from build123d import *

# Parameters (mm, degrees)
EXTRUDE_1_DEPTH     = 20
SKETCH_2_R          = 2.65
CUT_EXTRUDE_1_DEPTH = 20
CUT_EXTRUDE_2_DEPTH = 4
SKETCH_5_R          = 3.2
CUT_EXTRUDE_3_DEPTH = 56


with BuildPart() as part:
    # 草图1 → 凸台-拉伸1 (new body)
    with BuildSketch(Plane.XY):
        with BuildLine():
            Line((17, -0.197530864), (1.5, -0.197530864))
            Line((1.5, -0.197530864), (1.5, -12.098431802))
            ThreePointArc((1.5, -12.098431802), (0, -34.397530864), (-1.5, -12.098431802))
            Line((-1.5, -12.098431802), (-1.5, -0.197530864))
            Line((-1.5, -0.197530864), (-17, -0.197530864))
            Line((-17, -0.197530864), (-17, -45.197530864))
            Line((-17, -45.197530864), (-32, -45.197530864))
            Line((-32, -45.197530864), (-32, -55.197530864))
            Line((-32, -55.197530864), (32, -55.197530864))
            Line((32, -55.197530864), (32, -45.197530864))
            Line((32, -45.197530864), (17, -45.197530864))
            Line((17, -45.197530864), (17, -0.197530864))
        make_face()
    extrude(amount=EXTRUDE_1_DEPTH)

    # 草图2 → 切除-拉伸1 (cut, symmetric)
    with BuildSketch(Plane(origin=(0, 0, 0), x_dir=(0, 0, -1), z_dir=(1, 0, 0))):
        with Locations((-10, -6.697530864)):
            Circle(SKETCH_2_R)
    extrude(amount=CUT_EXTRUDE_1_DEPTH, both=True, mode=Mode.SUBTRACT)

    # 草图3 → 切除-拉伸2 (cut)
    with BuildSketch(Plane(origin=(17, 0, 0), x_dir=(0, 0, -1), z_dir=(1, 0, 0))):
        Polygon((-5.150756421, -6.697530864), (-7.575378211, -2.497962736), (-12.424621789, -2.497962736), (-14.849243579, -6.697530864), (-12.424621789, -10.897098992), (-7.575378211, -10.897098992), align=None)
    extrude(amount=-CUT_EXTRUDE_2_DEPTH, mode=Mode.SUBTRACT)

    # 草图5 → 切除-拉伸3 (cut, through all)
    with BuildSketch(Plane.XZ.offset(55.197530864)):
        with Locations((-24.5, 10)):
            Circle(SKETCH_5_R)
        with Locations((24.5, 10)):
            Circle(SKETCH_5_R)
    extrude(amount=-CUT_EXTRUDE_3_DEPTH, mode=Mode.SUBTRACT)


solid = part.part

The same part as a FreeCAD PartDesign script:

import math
import FreeCAD as App
import Part
import Sketcher
from FreeCAD import Vector
Q = App.Units.Quantity


def add_polygon(sketch, points):
    """Adds a closed chain of lines whose ends are joined by coincident constraints."""
    first, n = sketch.GeometryCount, len(points)
    for a, b in zip(points, points[1:] + points[:1]):
        sketch.addGeometry(Part.LineSegment(App.Vector(*a, 0), App.Vector(*b, 0)), False)
    for i in range(n):
        sketch.addConstraint(Sketcher.Constraint("Coincident", first + i, 2, first + (i + 1) % n, 1))

doc = App.newDocument("Part")
body = doc.addObject("PartDesign::Body", "Body")

# Sketch on XY plane
sketch1 = body.newObject("Sketcher::SketchObject", "Sketch")
sketch1.AttachmentSupport = (doc.getObject("XY_Plane"), [""])
sketch1.MapMode = "FlatFace"
sketch1.addGeometry([
    Part.LineSegment(Vector(17, -0.2, 0), Vector(1.5, -0.2, 0)),  # 0
    Part.LineSegment(Vector(1.5, -0.2, 0), Vector(1.5, -12.1, 0)),  # 1
    Part.ArcOfCircle(Part.Circle(Vector(0, -23.2, 0), Vector(0, 0, 1), 11.2), math.radians(98), math.radians(442)),  # 2
    Part.LineSegment(Vector(-1.5, -12.1, 0), Vector(-1.5, -0.2, 0)),  # 3
    Part.LineSegment(Vector(-1.5, -0.2, 0), Vector(-17, -0.2, 0)),  # 4
    Part.LineSegment(Vector(-17, -0.2, 0), Vector(-17, -45.2, 0)),  # 5
    Part.LineSegment(Vector(-17, -45.2, 0), Vector(-32, -45.2, 0)),  # 6
    Part.LineSegment(Vector(-32, -45.2, 0), Vector(-32, -55.2, 0)),  # 7
    Part.LineSegment(Vector(-32, -55.2, 0), Vector(32, -55.2, 0)),  # 8
    Part.LineSegment(Vector(32, -55.2, 0), Vector(32, -45.2, 0)),  # 9
    Part.LineSegment(Vector(32, -45.2, 0), Vector(17, -45.2, 0)),  # 10
    Part.LineSegment(Vector(17, -45.2, 0), Vector(17, -0.2, 0)),  # 11
], False)
sketch1.addConstraint([
    Sketcher.Constraint("Coincident", 0, 2, 1, 1),
    Sketcher.Constraint("Coincident", 1, 2, 2, 2),
    Sketcher.Constraint("Coincident", 2, 1, 3, 1),
    Sketcher.Constraint("Coincident", 3, 2, 4, 1),
    Sketcher.Constraint("Coincident", 4, 2, 5, 1),
    Sketcher.Constraint("Coincident", 5, 2, 6, 1),
    Sketcher.Constraint("Coincident", 6, 2, 7, 1),
    Sketcher.Constraint("Coincident", 7, 2, 8, 1),
    Sketcher.Constraint("Coincident", 8, 2, 9, 1),
    Sketcher.Constraint("Coincident", 9, 2, 10, 1),
    Sketcher.Constraint("Coincident", 10, 2, 11, 1),
    Sketcher.Constraint("Coincident", 11, 2, 0, 1),
    Sketcher.Constraint("Horizontal", 0),
    Sketcher.Constraint("Vertical", 1),
    Sketcher.Constraint("Vertical", 3),
    Sketcher.Constraint("Horizontal", 4),
    Sketcher.Constraint("Vertical", 5),
    Sketcher.Constraint("Horizontal", 6),
    Sketcher.Constraint("Vertical", 7),
    Sketcher.Constraint("Horizontal", 8),
    Sketcher.Constraint("Vertical", 9),
    Sketcher.Constraint("Horizontal", 10),
    Sketcher.Constraint("Vertical", 11),
    Sketcher.Constraint("Symmetric", 1, 2, 2, 1, -2),
    Sketcher.Constraint("Symmetric", 6, 2, 9, 2, -2),
    Sketcher.Constraint("Symmetric", 4, 2, 11, 2, -2),
    Sketcher.Constraint("Radius", 2, 11.2),
    Sketcher.Constraint("DistanceX", 6, 2, 6, 1, 15.0),
    Sketcher.Constraint("DistanceX", 8, 1, 8, 2, 64.0),
    Sketcher.Constraint("DistanceY", 5, 2, 5, 1, 45.0),
    Sketcher.Constraint("DistanceY", 7, 2, 7, 1, 10.0),
    Sketcher.Constraint("DistanceX", 0, 2, 0, 1, 15.5),
    Sketcher.Constraint("DistanceY", 2, 3, 0, 2, 23.0),
    Sketcher.Constraint("DistanceY", 2, 3, -1, 1, 23.197531),
])
pad1 = body.newObject("PartDesign::Pad", "Pad")
pad1.Profile = sketch1
pad1.Length = 20

# Sketch on YZ plane
sketch2 = body.newObject("Sketcher::SketchObject", "Sketch001")
sketch2.AttachmentSupport = (doc.getObject("YZ_Plane"), [""])
sketch2.MapMode = "FlatFace"
sketch2.addGeometry(Part.Circle(Vector(-6.7, 10, 0), Vector(0, 0, 1), 2.6), False)
sketch2.addConstraint([
    Sketcher.Constraint("Diameter", 0, 5.3),
    Sketcher.Constraint("DistanceY", -1, 1, 0, 3, 10.0),
    Sketcher.Constraint("DistanceX", 0, 3, -1, 1, 6.697531),
])
pocket1 = body.newObject("PartDesign::Pocket", "Pocket")
pocket1.Profile = sketch2
pocket1.Length = 40
pocket1.Midplane = True

# Sketch on YZ plane
sketch3 = body.newObject("Sketcher::SketchObject", "Sketch002")
sketch3.AttachmentSupport = (doc.getObject("YZ_Plane"), [""])
sketch3.MapMode = "FlatFace"
sketch3.AttachmentOffset = App.Placement(Vector(0, 0, 17), App.Rotation())
add_polygon(sketch3, [(-6.7, 5.2), (-2.5, 7.6), (-2.5, 12.4), (-6.7, 14.8), (-10.9, 12.4), (-10.9, 7.6)])  # lines 0-5
sketch3.addConstraint([
    Sketcher.Constraint("Vertical", 1),
    Sketcher.Constraint("Vertical", 4),
    Sketcher.Constraint("Parallel", 0, 3),
    Sketcher.Constraint("Parallel", 2, 5),
    Sketcher.Constraint("Horizontal", 1, 2, 3, 2),
    Sketcher.Constraint("Horizontal", 0, 2, 4, 2),
    Sketcher.Constraint("Vertical", 2, 2, 5, 2),
    Sketcher.Constraint("Angle", 0, Q("30 deg")),
    Sketcher.Constraint("DistanceX", 3, 2, -1, 1, 10.897099),
    Sketcher.Constraint("DistanceY", 1, 1, 1, 2, 4.849244),
    Sketcher.Constraint("DistanceY", -1, 1, 0, 2, 7.575378),
    Sketcher.Constraint("DistanceX", 2, 2, -1, 1, 6.697531),
])
pocket2 = body.newObject("PartDesign::Pocket", "Pocket001")
pocket2.Profile = sketch3
pocket2.Length = 4

# Sketch on XZ plane
sketch4 = body.newObject("Sketcher::SketchObject", "Sketch003")
sketch4.AttachmentSupport = (doc.getObject("XZ_Plane"), [""])
sketch4.MapMode = "FlatFace"
sketch4.AttachmentOffset = App.Placement(Vector(0, 0, 55.197531), App.Rotation())
sketch4.addGeometry([
    Part.Circle(Vector(-24.5, 10, 0), Vector(0, 0, 1), 3.2),
    Part.Circle(Vector(24.5, 10, 0), Vector(0, 0, 1), 3.2),
], False)
sketch4.addConstraint([
    Sketcher.Constraint("Equal", 0, 1),
    Sketcher.Constraint("Symmetric", 0, 3, 1, 3, -2),
    Sketcher.Constraint("Diameter", 0, 6.4),
    Sketcher.Constraint("DistanceY", -1, 1, 0, 3, 10.0),
    Sketcher.Constraint("DistanceX", 0, 3, 1, 3, 49.0),
])
pocket3 = body.newObject("PartDesign::Pocket", "Pocket002")
pocket3.Profile = sketch4
pocket3.Type = "ThroughAll"

doc.recompute()
